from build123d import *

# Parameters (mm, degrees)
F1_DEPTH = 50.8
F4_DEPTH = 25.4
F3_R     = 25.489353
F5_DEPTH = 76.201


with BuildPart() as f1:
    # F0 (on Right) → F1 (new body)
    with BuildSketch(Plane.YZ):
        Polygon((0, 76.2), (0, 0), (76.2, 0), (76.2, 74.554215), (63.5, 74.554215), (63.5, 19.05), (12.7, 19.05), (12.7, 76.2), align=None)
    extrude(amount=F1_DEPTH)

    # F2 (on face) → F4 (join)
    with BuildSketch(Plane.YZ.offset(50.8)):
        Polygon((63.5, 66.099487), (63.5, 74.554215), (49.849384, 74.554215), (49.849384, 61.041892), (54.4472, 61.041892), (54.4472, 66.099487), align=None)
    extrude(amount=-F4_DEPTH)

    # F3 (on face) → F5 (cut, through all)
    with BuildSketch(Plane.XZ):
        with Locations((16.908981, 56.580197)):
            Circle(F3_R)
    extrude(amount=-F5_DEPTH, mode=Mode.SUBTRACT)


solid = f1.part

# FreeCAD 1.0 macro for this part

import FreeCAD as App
import Part
import Sketcher
Q = App.Units.Quantity


def add_polygon(sketch, points):
    """Adds a closed chain of lines whose ends are joined by coincident constraints."""
    first, n = sketch.GeometryCount, len(points)
    for a, b in zip(points, points[1:] + points[:1]):
        sketch.addGeometry(Part.LineSegment(App.Vector(*a, 0), App.Vector(*b, 0)), False)
    for i in range(n):
        sketch.addConstraint(Sketcher.Constraint("Coincident", first + i, 2, first + (i + 1) % n, 1))

doc = App.newDocument("Part")
body = doc.addObject("PartDesign::Body", "Body")
body.AllowCompound = True

sketch1 = body.newObject("Sketcher::SketchObject", "Sketch")
sketch1.AttachmentSupport = (doc.getObject("YZ_Plane"), [""])
sketch1.MapMode = "FlatFace"
add_polygon(sketch1, [(0, 76.2), (0, 0), (76.2, 0), (76.2, 74.554215), (63.5, 74.554215), (63.5, 19.05), (12.7, 19.05), (12.7, 76.2)])
sketch1.addConstraint([
    Sketcher.Constraint("Vertical", 0),
    Sketcher.Constraint("Horizontal", 1),
    Sketcher.Constraint("Vertical", 2),
    Sketcher.Constraint("Horizontal", 3),
    Sketcher.Constraint("Vertical", 4),
    Sketcher.Constraint("Horizontal", 5),
    Sketcher.Constraint("Vertical", 6),
    Sketcher.Constraint("Horizontal", 7),
    Sketcher.Constraint("Coincident", 0, 2, -1, 1),
    Sketcher.Constraint("Equal", 3, 7),
    Sketcher.Constraint("Equal", 1, 0),
    Sketcher.Constraint("DistanceX", 1, 1, 1, 2, Q("3 in")),
    Sketcher.Constraint("DistanceX", 5, 2, 5, 1, Q("2 in")),
    Sketcher.Constraint("DistanceY", 6, 1, 6, 2, Q("2.25 in")),
    Sketcher.Constraint("DistanceY", 2, 1, 2, 2, 74.554215),
])
pad1 = body.newObject("PartDesign::Pad", "Pad")
pad1.Profile = sketch1
pad1.Length = Q("2 in")

sketch2 = body.newObject("Sketcher::SketchObject", "Sketch001")
sketch2.AttachmentSupport = (doc.getObject("YZ_Plane"), [""])
sketch2.MapMode = "FlatFace"
sketch2.AttachmentOffset = App.Placement(App.Vector(0, 0, 2 * 25.4), App.Rotation())
add_polygon(sketch2, [(63.5, 66.099487), (63.5, 74.554215), (49.849384, 74.554215), (49.849384, 61.041892), (54.4472, 61.041892), (54.4472, 66.099487)])
sketch2.addConstraint([
    Sketcher.Constraint("Vertical", 0),
    Sketcher.Constraint("Horizontal", 1),
    Sketcher.Constraint("Vertical", 2),
    Sketcher.Constraint("Horizontal", 3),
    Sketcher.Constraint("Vertical", 4),
    Sketcher.Constraint("Horizontal", 5),
    Sketcher.Constraint("DistanceX", -1, 1, 0, 2, Q("2.5 in")),
    Sketcher.Constraint("DistanceX", 5, 1, 5, 2, 9.0528),
    Sketcher.Constraint("DistanceY", 0, 1, 0, 2, 8.454728),
    Sketcher.Constraint("DistanceX", 1, 2, 1, 1, 13.650616),
    Sketcher.Constraint("DistanceY", 2, 2, 2, 1, 13.512323),
    Sketcher.Constraint("DistanceY", -1, 1, 2, 2, 61.041892),
])
pad2 = body.newObject("PartDesign::Pad", "Pad001")
pad2.Profile = sketch2
pad2.Length = Q("1 in")
pad2.Reversed = True

sketch3 = body.newObject("Sketcher::SketchObject", "Sketch002")
sketch3.AttachmentSupport = (doc.getObject("XZ_Plane"), [""])
sketch3.MapMode = "FlatFace"
sketch3.addGeometry(Part.Circle(App.Vector(16.908981, 56.580197, 0), App.Vector(0, 0, 1), 25.489353), False)
sketch3.addConstraint([
    Sketcher.Constraint("Diameter", 0, 50.978706),
    Sketcher.Constraint("DistanceX", -1, 1, 0, 3, 16.908981),
    Sketcher.Constraint("DistanceY", -1, 1, 0, 3, 56.580197),
])
pocket1 = body.newObject("PartDesign::Pocket", "Pocket")
pocket1.Profile = sketch3
pocket1.Type = "ThroughAll"

doc.recompute()
